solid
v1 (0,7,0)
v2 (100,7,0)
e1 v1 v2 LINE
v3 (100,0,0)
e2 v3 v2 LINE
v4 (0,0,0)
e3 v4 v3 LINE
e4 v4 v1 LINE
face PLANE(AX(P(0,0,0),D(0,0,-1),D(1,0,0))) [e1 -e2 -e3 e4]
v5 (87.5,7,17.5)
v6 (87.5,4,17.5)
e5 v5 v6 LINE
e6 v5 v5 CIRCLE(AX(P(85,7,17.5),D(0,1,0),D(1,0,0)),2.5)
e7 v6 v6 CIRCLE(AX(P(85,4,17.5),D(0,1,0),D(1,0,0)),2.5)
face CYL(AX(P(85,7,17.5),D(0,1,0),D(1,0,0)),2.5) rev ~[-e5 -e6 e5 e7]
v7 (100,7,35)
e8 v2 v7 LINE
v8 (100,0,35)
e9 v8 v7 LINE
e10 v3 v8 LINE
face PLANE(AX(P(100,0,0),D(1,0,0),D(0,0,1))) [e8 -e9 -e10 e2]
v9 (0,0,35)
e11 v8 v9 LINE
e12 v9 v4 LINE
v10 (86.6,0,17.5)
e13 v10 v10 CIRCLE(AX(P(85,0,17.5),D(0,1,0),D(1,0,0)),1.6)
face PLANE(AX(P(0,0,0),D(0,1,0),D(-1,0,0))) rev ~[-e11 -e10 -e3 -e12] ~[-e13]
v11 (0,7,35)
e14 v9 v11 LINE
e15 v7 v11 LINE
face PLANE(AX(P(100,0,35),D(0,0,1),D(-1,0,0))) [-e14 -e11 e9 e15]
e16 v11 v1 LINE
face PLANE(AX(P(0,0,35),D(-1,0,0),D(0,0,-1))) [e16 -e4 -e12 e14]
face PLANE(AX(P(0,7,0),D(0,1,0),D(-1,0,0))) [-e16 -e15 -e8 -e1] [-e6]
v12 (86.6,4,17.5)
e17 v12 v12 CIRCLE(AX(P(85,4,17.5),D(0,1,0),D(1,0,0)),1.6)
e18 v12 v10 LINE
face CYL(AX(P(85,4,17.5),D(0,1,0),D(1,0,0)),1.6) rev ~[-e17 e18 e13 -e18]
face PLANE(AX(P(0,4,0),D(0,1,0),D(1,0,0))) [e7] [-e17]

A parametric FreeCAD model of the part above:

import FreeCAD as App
import Part
import Sketcher
Q = App.Units.Quantity


def add_polygon(sketch, points):
    """Adds a closed chain of lines whose ends are joined by coincident constraints."""
    first, n = sketch.GeometryCount, len(points)
    for a, b in zip(points, points[1:] + points[:1]):
        sketch.addGeometry(Part.LineSegment(App.Vector(*a, 0), App.Vector(*b, 0)), False)
    for i in range(n):
        sketch.addConstraint(Sketcher.Constraint("Coincident", first + i, 2, first + (i + 1) % n, 1))

doc = App.newDocument("Part")
params = doc.addObject("Spreadsheet::Sheet", "Params")
for row, (alias, value) in enumerate([
    ("sketch1_width", "100 mm"),
    ("sketch1_height", "35 mm"),
    ("pad1_length", "7 mm"),
    ("sketch2_diameter", "5 mm"),
    ("pocket1_length", "3 mm"),
    ("sketch3_diameter", "3.2 mm"),
    ("pocket2_length", "4 mm"),
], start=1):
    params.set(f"A{row}", alias)
    params.set(f"B{row}", "=" + value)
    params.setAlias(f"B{row}", alias)

body = doc.addObject("PartDesign::Body", "Body")

sketch1 = body.newObject("Sketcher::SketchObject", "Sketch")
sketch1.AttachmentSupport = (doc.getObject("XZ_Plane"), [""])
sketch1.MapMode = "FlatFace"
add_polygon(sketch1, [(100, 0), (0, 0), (0, 35), (100, 35)])
sketch1.addConstraint([
    Sketcher.Constraint("Horizontal", 0),
    Sketcher.Constraint("Vertical", 1),
    Sketcher.Constraint("Horizontal", 2),
    Sketcher.Constraint("Vertical", 3),
    Sketcher.Constraint("Coincident", 0, 2, -1, 1),
    Sketcher.Constraint("DistanceX", 0, 2, 0, 1, Q("100 mm")),
    Sketcher.Constraint("DistanceY", 1, 1, 1, 2, Q("35 mm")),
])
sketch1.setExpression("Constraints[9]", "Params.sketch1_width")
sketch1.setExpression("Constraints[10]", "Params.sketch1_height")
pad1 = body.newObject("PartDesign::Pad", "Pad")
pad1.Profile = sketch1
pad1.setExpression("Length", "Params.pad1_length")
pad1.Reversed = True

sketch2 = body.newObject("Sketcher::SketchObject", "Sketch001")
sketch2.AttachmentSupport = (doc.getObject("XZ_Plane"), [""])
sketch2.MapMode = "FlatFace"
sketch2.AttachmentOffset = App.Placement(App.Vector(0, 0, -7), App.Rotation())
sketch2.addGeometry(Part.Circle(App.Vector(85, 17.5, 0), App.Vector(0, 0, 1), 2.5), False)
sketch2.addConstraint([
    Sketcher.Constraint("Diameter", 0, Q("5 mm")),
    Sketcher.Constraint("DistanceX", -1, 1, 0, 3, Q("85 mm")),
    Sketcher.Constraint("DistanceY", -1, 1, 0, 3, Q("17.5 mm")),
])
sketch2.setExpression("Constraints[0]", "Params.sketch2_diameter")
pocket1 = body.newObject("PartDesign::Pocket", "Pocket")
pocket1.Profile = sketch2
pocket1.setExpression("Length", "Params.pocket1_length")
pocket1.Reversed = True

sketch3 = body.newObject("Sketcher::SketchObject", "Sketch002")
sketch3.AttachmentSupport = (doc.getObject("XZ_Plane"), [""])
sketch3.MapMode = "FlatFace"
sketch3.AttachmentOffset = App.Placement(App.Vector(0, 0, -4), App.Rotation())
sketch3.addGeometry(Part.Circle(App.Vector(85, 17.5, 0), App.Vector(0, 0, 1), 1.6), False)
sketch3.addConstraint([
    Sketcher.Constraint("Diameter", 0, Q("3.2 mm")),
    Sketcher.Constraint("DistanceX", -1, 1, 0, 3, Q("85 mm")),
    Sketcher.Constraint("DistanceY", -1, 1, 0, 3, Q("17.5 mm")),
])
sketch3.setExpression("Constraints[0]", "Params.sketch3_diameter")
pocket2 = body.newObject("PartDesign::Pocket", "Pocket001")
pocket2.Profile = sketch3
pocket2.setExpression("Length", "Params.pocket2_length")
pocket2.Reversed = True

doc.recompute()
